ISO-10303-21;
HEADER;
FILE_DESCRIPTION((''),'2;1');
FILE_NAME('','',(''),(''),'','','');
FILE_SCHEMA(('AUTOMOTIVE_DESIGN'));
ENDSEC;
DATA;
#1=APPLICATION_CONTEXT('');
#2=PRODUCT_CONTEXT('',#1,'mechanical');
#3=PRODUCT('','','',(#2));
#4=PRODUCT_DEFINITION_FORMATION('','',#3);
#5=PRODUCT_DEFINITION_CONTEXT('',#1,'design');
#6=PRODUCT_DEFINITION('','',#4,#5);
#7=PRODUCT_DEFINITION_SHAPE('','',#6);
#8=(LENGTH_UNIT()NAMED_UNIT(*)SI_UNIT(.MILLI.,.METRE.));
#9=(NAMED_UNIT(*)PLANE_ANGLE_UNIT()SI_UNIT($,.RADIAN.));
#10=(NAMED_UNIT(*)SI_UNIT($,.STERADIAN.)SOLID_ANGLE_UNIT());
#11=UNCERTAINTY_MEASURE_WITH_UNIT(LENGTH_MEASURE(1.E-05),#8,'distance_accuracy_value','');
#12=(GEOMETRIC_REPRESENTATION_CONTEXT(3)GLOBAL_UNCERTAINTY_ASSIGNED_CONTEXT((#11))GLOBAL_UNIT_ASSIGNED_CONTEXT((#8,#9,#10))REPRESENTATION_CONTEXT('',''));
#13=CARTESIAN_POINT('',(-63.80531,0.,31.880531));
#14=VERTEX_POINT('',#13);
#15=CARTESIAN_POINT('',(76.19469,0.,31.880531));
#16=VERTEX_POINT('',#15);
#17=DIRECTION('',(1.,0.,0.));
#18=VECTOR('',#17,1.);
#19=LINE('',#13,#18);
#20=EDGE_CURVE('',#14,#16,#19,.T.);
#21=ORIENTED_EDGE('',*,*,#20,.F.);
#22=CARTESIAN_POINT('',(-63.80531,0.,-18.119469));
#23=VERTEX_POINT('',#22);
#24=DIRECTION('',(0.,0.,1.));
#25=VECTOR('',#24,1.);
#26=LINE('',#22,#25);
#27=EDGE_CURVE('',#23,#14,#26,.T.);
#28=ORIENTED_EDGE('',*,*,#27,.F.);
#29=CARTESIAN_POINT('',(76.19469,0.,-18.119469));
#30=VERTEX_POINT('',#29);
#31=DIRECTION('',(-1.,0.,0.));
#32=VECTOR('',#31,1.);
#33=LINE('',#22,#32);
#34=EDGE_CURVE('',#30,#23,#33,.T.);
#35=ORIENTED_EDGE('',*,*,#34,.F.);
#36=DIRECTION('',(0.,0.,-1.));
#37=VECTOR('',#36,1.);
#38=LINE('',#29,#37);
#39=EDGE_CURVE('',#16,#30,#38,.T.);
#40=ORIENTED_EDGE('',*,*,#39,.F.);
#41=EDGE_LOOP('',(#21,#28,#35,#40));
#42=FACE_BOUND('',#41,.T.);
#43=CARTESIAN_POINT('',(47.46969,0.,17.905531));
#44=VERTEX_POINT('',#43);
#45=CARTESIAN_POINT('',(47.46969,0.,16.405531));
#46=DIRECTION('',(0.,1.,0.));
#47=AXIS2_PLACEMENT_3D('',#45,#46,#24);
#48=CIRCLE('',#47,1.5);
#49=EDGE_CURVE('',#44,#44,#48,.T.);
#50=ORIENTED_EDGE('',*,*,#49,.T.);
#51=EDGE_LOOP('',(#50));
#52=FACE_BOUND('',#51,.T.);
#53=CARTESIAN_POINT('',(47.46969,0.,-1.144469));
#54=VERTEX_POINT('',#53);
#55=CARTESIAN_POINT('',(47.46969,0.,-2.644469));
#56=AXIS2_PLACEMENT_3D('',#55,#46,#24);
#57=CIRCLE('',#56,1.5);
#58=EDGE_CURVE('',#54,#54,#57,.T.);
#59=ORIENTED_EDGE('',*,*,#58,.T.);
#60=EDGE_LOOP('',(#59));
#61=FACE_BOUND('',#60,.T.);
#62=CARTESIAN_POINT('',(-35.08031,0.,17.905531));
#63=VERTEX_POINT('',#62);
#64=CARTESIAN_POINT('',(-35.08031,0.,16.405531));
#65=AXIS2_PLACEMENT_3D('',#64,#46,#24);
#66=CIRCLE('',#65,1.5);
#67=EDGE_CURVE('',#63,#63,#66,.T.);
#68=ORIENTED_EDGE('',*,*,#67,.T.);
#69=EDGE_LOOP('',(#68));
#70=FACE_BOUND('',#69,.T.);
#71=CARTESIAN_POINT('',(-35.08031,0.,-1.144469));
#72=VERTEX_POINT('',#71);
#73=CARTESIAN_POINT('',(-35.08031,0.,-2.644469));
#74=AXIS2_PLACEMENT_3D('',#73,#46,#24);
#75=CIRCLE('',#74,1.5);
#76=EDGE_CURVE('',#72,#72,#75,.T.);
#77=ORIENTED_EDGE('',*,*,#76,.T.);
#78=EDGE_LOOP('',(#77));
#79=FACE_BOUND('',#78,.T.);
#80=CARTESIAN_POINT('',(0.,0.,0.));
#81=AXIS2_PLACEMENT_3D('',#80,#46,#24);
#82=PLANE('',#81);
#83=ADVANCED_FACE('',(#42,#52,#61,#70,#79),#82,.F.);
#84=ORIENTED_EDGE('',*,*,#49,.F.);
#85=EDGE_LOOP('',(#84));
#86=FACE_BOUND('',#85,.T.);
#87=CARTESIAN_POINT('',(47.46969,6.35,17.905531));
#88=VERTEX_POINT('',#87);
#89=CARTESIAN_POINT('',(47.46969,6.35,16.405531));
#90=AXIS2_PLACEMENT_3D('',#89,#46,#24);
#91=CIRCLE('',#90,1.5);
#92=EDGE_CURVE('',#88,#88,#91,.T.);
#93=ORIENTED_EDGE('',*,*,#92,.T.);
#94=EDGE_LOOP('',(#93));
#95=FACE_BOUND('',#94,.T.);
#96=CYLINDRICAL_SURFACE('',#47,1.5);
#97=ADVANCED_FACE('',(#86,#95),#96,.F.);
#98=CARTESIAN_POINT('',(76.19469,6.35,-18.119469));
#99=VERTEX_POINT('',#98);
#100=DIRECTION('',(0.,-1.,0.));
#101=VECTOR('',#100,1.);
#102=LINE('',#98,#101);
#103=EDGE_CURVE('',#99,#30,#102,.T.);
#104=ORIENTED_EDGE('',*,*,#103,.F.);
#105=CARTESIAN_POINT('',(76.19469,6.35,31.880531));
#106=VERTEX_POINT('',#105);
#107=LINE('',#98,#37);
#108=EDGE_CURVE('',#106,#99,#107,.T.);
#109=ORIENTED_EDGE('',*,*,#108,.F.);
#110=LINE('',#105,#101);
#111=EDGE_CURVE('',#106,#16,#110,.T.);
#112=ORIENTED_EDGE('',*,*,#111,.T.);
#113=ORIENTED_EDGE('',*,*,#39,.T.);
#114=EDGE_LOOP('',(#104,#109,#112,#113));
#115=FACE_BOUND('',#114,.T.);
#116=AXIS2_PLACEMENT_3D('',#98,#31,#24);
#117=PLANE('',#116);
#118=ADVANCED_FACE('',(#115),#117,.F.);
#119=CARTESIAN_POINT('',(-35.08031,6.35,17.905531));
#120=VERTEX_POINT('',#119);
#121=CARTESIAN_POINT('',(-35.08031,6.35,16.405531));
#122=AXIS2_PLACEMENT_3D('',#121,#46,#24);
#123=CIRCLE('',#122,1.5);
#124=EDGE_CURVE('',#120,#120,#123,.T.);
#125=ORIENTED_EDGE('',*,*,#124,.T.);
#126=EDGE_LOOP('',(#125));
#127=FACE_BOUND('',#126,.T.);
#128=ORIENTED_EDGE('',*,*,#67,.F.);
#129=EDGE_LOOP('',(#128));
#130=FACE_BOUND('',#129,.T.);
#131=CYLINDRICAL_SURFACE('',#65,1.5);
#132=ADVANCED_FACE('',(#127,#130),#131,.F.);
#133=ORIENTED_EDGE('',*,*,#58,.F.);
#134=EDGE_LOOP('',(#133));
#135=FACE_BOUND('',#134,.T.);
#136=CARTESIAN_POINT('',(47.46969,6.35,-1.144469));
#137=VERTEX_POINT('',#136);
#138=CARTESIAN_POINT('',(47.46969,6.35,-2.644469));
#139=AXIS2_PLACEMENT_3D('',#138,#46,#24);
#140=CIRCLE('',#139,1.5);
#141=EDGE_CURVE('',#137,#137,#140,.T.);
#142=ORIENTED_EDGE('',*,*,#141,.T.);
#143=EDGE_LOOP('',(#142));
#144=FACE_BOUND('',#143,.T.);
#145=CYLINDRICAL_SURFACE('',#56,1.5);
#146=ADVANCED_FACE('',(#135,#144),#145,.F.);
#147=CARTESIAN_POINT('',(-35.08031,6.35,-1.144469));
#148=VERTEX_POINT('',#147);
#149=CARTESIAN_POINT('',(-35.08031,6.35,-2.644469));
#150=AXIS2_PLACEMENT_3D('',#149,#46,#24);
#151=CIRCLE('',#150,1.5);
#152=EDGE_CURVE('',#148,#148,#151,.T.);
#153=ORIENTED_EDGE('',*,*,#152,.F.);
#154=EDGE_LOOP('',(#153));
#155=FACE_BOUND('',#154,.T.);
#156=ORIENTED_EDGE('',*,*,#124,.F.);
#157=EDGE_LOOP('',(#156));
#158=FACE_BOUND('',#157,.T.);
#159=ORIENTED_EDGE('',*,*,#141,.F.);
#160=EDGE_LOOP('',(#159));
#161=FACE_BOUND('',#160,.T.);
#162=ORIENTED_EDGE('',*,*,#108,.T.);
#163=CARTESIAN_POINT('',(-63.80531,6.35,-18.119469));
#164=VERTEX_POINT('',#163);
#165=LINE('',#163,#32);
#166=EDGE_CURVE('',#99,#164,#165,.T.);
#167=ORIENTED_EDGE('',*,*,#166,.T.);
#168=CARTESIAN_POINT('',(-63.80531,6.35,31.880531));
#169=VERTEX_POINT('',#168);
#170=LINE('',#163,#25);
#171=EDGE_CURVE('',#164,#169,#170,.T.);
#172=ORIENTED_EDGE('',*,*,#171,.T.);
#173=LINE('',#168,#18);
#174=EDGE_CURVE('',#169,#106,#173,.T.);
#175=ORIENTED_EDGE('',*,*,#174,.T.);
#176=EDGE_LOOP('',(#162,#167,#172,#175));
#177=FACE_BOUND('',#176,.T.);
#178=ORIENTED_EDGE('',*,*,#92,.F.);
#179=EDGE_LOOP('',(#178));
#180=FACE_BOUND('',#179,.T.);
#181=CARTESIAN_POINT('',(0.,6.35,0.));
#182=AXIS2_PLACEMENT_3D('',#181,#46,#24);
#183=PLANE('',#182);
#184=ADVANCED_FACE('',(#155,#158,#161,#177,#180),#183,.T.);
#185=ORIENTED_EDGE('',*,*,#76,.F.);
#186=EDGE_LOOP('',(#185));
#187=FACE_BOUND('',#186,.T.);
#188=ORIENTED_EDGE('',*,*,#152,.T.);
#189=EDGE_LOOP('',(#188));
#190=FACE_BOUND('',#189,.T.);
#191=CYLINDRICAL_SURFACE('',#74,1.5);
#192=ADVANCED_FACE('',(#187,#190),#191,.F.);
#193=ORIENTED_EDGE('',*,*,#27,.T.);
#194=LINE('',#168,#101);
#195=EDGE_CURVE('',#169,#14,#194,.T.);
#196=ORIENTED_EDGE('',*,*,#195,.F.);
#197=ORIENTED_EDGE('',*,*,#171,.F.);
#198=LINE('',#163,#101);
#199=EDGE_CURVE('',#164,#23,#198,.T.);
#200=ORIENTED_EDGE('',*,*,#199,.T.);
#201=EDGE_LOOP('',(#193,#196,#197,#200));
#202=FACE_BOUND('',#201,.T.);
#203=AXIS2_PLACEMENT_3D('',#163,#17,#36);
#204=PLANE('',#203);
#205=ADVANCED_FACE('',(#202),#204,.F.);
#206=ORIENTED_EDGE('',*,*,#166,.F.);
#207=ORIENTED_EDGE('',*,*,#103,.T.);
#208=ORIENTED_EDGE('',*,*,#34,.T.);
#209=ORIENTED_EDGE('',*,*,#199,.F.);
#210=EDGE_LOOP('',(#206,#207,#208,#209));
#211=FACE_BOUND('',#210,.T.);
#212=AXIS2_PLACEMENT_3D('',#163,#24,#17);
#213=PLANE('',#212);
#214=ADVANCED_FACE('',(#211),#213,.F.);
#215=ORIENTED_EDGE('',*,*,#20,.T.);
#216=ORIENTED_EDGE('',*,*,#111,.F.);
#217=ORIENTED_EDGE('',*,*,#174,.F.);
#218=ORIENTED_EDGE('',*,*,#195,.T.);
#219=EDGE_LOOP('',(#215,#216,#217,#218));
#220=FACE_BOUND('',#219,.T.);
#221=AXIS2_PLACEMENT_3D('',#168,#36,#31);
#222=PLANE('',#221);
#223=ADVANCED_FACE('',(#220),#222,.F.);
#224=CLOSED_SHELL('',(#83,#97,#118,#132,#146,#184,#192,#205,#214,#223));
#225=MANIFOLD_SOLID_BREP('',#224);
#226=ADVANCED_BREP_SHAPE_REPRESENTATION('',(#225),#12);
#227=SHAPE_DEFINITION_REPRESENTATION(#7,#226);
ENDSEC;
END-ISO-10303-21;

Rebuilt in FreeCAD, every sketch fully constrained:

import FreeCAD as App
import Part
import Sketcher

V = App.Vector

doc = App.newDocument("Part")
body = doc.addObject("PartDesign::Body", "Body")

sketch1 = body.newObject("Sketcher::SketchObject", "Sketch")
sketch1.AttachmentSupport = (doc.getObject("XZ_Plane"), [""])
sketch1.MapMode = "FlatFace"
sketch1.addGeometry([
    Part.LineSegment(V(-64, -18, 0), V(-64, 32, 0)),
    Part.LineSegment(V(-64, 32, 0), V(76, 32, 0)),
    Part.LineSegment(V(76, 32, 0), V(76, -18, 0)),
    Part.LineSegment(V(76, -18, 0), V(-64, -18, 0)),
], False)
sketch1.addConstraint([
    Sketcher.Constraint("Coincident", 0, 2, 1, 1),
    Sketcher.Constraint("Coincident", 1, 2, 2, 1),
    Sketcher.Constraint("Coincident", 2, 2, 3, 1),
    Sketcher.Constraint("Coincident", 3, 2, 0, 1),
    Sketcher.Constraint("Vertical", 0),
    Sketcher.Constraint("Horizontal", 1),
    Sketcher.Constraint("Vertical", 2),
    Sketcher.Constraint("Horizontal", 3),
    Sketcher.Constraint("DistanceX", 1, 1, 1, 2, 140.0),
    Sketcher.Constraint("DistanceY", 0, 1, 0, 2, 50.0),
    Sketcher.Constraint("DistanceX", 0, 2, -1, 1, 63.80531),
    Sketcher.Constraint("DistanceY", -1, 1, 0, 2, 31.880531),
])
pad1 = body.newObject("PartDesign::Pad", "Pad")
pad1.Profile = sketch1
pad1.Length = 6.35
pad1.Reversed = True

sketch2 = body.newObject("Sketcher::SketchObject", "Sketch001")
sketch2.AttachmentSupport = (doc.getObject("XZ_Plane"), [""])
sketch2.MapMode = "FlatFace"
sketch2.AttachmentOffset = App.Placement(V(0, 0, -6.35), App.Rotation())
sketch2.addGeometry([
    Part.Circle(V(-35.1, -2.6, 0), V(0, 0, 1), 1.5),
    Part.Circle(V(-35.1, 16.4, 0), V(0, 0, 1), 1.5),
    Part.Circle(V(47.5, 16.4, 0), V(0, 0, 1), 1.5),
    Part.Circle(V(47.5, -2.6, 0), V(0, 0, 1), 1.5),
], False)
sketch2.addConstraint([
    Sketcher.Constraint("Equal", 0, 1),
    Sketcher.Constraint("Equal", 1, 2),
    Sketcher.Constraint("Equal", 2, 3),
    Sketcher.Constraint("Horizontal", 1, 3, 2, 3),
    Sketcher.Constraint("Horizontal", 0, 3, 3, 3),
    Sketcher.Constraint("Vertical", 0, 3, 1, 3),
    Sketcher.Constraint("Vertical", 2, 3, 3, 3),
    Sketcher.Constraint("Diameter", 0, 3.0),
    Sketcher.Constraint("DistanceY", 0, 3, 1, 3, 19.05),
    Sketcher.Constraint("DistanceX", 1, 3, 2, 3, 82.55),
    Sketcher.Constraint("DistanceX", 0, 3, -1, 1, 35.08031),
    Sketcher.Constraint("DistanceY", 0, 3, -1, 1, 2.644469),
])
pocket1 = body.newObject("PartDesign::Pocket", "Pocket")
pocket1.Profile = sketch2
pocket1.Length = 6.35
pocket1.Reversed = True

doc.recompute()
